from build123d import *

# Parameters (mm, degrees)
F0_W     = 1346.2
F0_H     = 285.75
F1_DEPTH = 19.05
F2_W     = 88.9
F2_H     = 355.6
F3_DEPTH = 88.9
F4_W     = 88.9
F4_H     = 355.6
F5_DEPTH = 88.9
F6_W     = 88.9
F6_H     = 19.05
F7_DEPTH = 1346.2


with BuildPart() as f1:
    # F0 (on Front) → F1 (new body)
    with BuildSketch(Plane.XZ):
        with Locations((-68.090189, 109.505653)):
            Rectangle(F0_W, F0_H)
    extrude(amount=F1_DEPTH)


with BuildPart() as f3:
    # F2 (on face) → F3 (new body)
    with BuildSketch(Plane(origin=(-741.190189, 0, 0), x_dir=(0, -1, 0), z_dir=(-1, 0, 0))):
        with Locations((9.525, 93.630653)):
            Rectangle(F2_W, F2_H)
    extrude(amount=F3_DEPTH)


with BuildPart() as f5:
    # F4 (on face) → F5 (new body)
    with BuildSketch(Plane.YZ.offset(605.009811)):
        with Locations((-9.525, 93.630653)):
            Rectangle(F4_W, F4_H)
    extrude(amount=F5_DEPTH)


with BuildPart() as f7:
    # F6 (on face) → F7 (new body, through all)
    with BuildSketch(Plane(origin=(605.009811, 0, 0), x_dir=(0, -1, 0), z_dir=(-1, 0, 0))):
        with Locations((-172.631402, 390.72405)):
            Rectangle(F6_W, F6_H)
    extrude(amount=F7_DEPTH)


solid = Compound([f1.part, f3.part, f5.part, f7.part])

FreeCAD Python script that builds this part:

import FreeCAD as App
import Part
import Sketcher

V = App.Vector
Q = App.Units.Quantity

doc = App.newDocument("Part")
params = doc.addObject("Spreadsheet::Sheet", "Params")
for row, (alias, value) in enumerate([
    ("sketch1_width", "53 in"),
    ("sketch1_height", "11.25 in"),
    ("pad1_length", "0.75 in"),
    ("sketch2_height", "14 in"),
    ("sketch2_width", "3.5 in"),
    ("pad2_length", "3.5 in"),
    ("sketch3_height", "14 in"),
    ("sketch3_width", "3.5 in"),
    ("pad3_length", "3.5 in"),
    ("sketch4_width", "3.5 in"),
    ("sketch4_height", "0.75 in"),
    ("pad4_length", "53 in"),
], start=1):
    params.set(f"A{row}", alias)
    params.set(f"B{row}", "=" + value)
    params.setAlias(f"B{row}", alias)

body = doc.addObject("PartDesign::Body", "Body")

# Sketch on XZ plane
sketch1 = body.newObject("Sketcher::SketchObject", "Sketch")
sketch1.AttachmentSupport = (doc.getObject("XZ_Plane"), [""])
sketch1.MapMode = "FlatFace"
sketch1.addGeometry([
    Part.LineSegment(V(-741.190189, 252.380653, 0), V(-741.190189, -33.369347, 0)),
    Part.LineSegment(V(-741.190189, -33.369347, 0), V(605.009811, -33.369347, 0)),
    Part.LineSegment(V(605.009811, -33.369347, 0), V(605.009811, 252.380653, 0)),
    Part.LineSegment(V(605.009811, 252.380653, 0), V(-741.190189, 252.380653, 0)),
], False)
sketch1.addConstraint([
    Sketcher.Constraint("Coincident", 0, 2, 1, 1),
    Sketcher.Constraint("Coincident", 1, 2, 2, 1),
    Sketcher.Constraint("Coincident", 2, 2, 3, 1),
    Sketcher.Constraint("Coincident", 3, 2, 0, 1),
    Sketcher.Constraint("Vertical", 0),
    Sketcher.Constraint("Horizontal", 1),
    Sketcher.Constraint("Vertical", 2),
    Sketcher.Constraint("Horizontal", 3),
    Sketcher.Constraint("DistanceX", 1, 1, 1, 2, Q("53 in")),
    Sketcher.Constraint("DistanceY", 0, 2, 0, 1, Q("11.25 in")),
    Sketcher.Constraint("DistanceX", 0, 2, -1, 1, Q("741.190189 mm")),
    Sketcher.Constraint("DistanceY", 0, 2, -1, 1, Q("33.369347 mm")),
])
sketch1.setExpression("Constraints[8]", "Params.sketch1_width")
sketch1.setExpression("Constraints[9]", "Params.sketch1_height")
pad1 = body.newObject("PartDesign::Pad", "Pad")
pad1.Profile = sketch1
pad1.setExpression("Length", "Params.pad1_length")
body2 = doc.addObject("PartDesign::Body", "Body001")

# Sketch on YZ plane
sketch2 = body2.newObject("Sketcher::SketchObject", "Sketch001")
sketch2.AttachmentSupport = (doc.getObject("YZ_Plane001"), [""])
sketch2.MapMode = "FlatFace"
sketch2.AttachmentOffset = App.Placement(V(0, 0, -741.190189), App.Rotation())
sketch2.addGeometry([
    Part.LineSegment(V(34.925, 271.430653, 0), V(34.925, -84.169347, 0)),
    Part.LineSegment(V(34.925, -84.169347, 0), V(-53.975, -84.169347, 0)),
    Part.LineSegment(V(-53.975, -84.169347, 0), V(-53.975, 271.430653, 0)),
    Part.LineSegment(V(-53.975, 271.430653, 0), V(34.925, 271.430653, 0)),
], False)
sketch2.addConstraint([
    Sketcher.Constraint("Coincident", 0, 2, 1, 1),
    Sketcher.Constraint("Coincident", 1, 2, 2, 1),
    Sketcher.Constraint("Coincident", 2, 2, 3, 1),
    Sketcher.Constraint("Coincident", 3, 2, 0, 1),
    Sketcher.Constraint("Vertical", 0),
    Sketcher.Constraint("Horizontal", 1),
    Sketcher.Constraint("Vertical", 2),
    Sketcher.Constraint("Horizontal", 3),
    Sketcher.Constraint("DistanceY", 0, 2, 0, 1, Q("14 in")),
    Sketcher.Constraint("DistanceX", 1, 2, 1, 1, Q("3.5 in")),
    Sketcher.Constraint("DistanceX", -1, 1, 0, 2, Q("1.375 in")),
    Sketcher.Constraint("DistanceY", 0, 2, -1, 1, Q("84.169347 mm")),
])
sketch2.setExpression("Constraints[8]", "Params.sketch2_height")
sketch2.setExpression("Constraints[9]", "Params.sketch2_width")
pad2 = body2.newObject("PartDesign::Pad", "Pad001")
pad2.Profile = sketch2
pad2.setExpression("Length", "Params.pad2_length")
pad2.Reversed = True
body3 = doc.addObject("PartDesign::Body", "Body002")

# Sketch on YZ plane
sketch3 = body3.newObject("Sketcher::SketchObject", "Sketch002")
sketch3.AttachmentSupport = (doc.getObject("YZ_Plane002"), [""])
sketch3.MapMode = "FlatFace"
sketch3.AttachmentOffset = App.Placement(V(0, 0, 605.009811), App.Rotation())
sketch3.addGeometry([
    Part.LineSegment(V(-53.975, 271.430653, 0), V(-53.975, -84.169347, 0)),
    Part.LineSegment(V(-53.975, -84.169347, 0), V(34.925, -84.169347, 0)),
    Part.LineSegment(V(34.925, -84.169347, 0), V(34.925, 271.430653, 0)),
    Part.LineSegment(V(34.925, 271.430653, 0), V(-53.975, 271.430653, 0)),
], False)
sketch3.addConstraint([
    Sketcher.Constraint("Coincident", 0, 2, 1, 1),
    Sketcher.Constraint("Coincident", 1, 2, 2, 1),
    Sketcher.Constraint("Coincident", 2, 2, 3, 1),
    Sketcher.Constraint("Coincident", 3, 2, 0, 1),
    Sketcher.Constraint("Vertical", 0),
    Sketcher.Constraint("Horizontal", 1),
    Sketcher.Constraint("Vertical", 2),
    Sketcher.Constraint("Horizontal", 3),
    Sketcher.Constraint("DistanceY", 0, 2, 0, 1, Q("14 in")),
    Sketcher.Constraint("DistanceX", 1, 1, 1, 2, Q("3.5 in")),
    Sketcher.Constraint("DistanceX", 0, 2, -1, 1, Q("2.125 in")),
    Sketcher.Constraint("DistanceY", 0, 2, -1, 1, Q("84.169347 mm")),
])
sketch3.setExpression("Constraints[8]", "Params.sketch3_height")
sketch3.setExpression("Constraints[9]", "Params.sketch3_width")
pad3 = body3.newObject("PartDesign::Pad", "Pad002")
pad3.Profile = sketch3
pad3.setExpression("Length", "Params.pad3_length")
body4 = doc.addObject("PartDesign::Body", "Body003")

# Sketch on YZ plane
sketch4 = body4.newObject("Sketcher::SketchObject", "Sketch003")
sketch4.AttachmentSupport = (doc.getObject("YZ_Plane003"), [""])
sketch4.MapMode = "FlatFace"
sketch4.AttachmentOffset = App.Placement(V(0, 0, 605.009811), App.Rotation())
sketch4.addGeometry([
    Part.LineSegment(V(217.081402, 400.24905, 0), V(217.081402, 381.19905, 0)),
    Part.LineSegment(V(217.081402, 381.19905, 0), V(128.181402, 381.19905, 0)),
    Part.LineSegment(V(128.181402, 381.19905, 0), V(128.181402, 400.24905, 0)),
    Part.LineSegment(V(128.181402, 400.24905, 0), V(217.081402, 400.24905, 0)),
], False)
sketch4.addConstraint([
    Sketcher.Constraint("Coincident", 0, 2, 1, 1),
    Sketcher.Constraint("Coincident", 1, 2, 2, 1),
    Sketcher.Constraint("Coincident", 2, 2, 3, 1),
    Sketcher.Constraint("Coincident", 3, 2, 0, 1),
    Sketcher.Constraint("Vertical", 0),
    Sketcher.Constraint("Horizontal", 1),
    Sketcher.Constraint("Vertical", 2),
    Sketcher.Constraint("Horizontal", 3),
    Sketcher.Constraint("DistanceX", 1, 2, 1, 1, Q("3.5 in")),
    Sketcher.Constraint("DistanceY", 0, 2, 0, 1, Q("0.75 in")),
    Sketcher.Constraint("DistanceX", -1, 1, 0, 2, Q("217.081402 mm")),
    Sketcher.Constraint("DistanceY", -1, 1, 0, 2, Q("381.19905 mm")),
])
sketch4.setExpression("Constraints[8]", "Params.sketch4_width")
sketch4.setExpression("Constraints[9]", "Params.sketch4_height")
pad4 = body4.newObject("PartDesign::Pad", "Pad003")
pad4.Profile = sketch4
pad4.setExpression("Length", "Params.pad4_length")
pad4.Reversed = True

doc.recompute()
